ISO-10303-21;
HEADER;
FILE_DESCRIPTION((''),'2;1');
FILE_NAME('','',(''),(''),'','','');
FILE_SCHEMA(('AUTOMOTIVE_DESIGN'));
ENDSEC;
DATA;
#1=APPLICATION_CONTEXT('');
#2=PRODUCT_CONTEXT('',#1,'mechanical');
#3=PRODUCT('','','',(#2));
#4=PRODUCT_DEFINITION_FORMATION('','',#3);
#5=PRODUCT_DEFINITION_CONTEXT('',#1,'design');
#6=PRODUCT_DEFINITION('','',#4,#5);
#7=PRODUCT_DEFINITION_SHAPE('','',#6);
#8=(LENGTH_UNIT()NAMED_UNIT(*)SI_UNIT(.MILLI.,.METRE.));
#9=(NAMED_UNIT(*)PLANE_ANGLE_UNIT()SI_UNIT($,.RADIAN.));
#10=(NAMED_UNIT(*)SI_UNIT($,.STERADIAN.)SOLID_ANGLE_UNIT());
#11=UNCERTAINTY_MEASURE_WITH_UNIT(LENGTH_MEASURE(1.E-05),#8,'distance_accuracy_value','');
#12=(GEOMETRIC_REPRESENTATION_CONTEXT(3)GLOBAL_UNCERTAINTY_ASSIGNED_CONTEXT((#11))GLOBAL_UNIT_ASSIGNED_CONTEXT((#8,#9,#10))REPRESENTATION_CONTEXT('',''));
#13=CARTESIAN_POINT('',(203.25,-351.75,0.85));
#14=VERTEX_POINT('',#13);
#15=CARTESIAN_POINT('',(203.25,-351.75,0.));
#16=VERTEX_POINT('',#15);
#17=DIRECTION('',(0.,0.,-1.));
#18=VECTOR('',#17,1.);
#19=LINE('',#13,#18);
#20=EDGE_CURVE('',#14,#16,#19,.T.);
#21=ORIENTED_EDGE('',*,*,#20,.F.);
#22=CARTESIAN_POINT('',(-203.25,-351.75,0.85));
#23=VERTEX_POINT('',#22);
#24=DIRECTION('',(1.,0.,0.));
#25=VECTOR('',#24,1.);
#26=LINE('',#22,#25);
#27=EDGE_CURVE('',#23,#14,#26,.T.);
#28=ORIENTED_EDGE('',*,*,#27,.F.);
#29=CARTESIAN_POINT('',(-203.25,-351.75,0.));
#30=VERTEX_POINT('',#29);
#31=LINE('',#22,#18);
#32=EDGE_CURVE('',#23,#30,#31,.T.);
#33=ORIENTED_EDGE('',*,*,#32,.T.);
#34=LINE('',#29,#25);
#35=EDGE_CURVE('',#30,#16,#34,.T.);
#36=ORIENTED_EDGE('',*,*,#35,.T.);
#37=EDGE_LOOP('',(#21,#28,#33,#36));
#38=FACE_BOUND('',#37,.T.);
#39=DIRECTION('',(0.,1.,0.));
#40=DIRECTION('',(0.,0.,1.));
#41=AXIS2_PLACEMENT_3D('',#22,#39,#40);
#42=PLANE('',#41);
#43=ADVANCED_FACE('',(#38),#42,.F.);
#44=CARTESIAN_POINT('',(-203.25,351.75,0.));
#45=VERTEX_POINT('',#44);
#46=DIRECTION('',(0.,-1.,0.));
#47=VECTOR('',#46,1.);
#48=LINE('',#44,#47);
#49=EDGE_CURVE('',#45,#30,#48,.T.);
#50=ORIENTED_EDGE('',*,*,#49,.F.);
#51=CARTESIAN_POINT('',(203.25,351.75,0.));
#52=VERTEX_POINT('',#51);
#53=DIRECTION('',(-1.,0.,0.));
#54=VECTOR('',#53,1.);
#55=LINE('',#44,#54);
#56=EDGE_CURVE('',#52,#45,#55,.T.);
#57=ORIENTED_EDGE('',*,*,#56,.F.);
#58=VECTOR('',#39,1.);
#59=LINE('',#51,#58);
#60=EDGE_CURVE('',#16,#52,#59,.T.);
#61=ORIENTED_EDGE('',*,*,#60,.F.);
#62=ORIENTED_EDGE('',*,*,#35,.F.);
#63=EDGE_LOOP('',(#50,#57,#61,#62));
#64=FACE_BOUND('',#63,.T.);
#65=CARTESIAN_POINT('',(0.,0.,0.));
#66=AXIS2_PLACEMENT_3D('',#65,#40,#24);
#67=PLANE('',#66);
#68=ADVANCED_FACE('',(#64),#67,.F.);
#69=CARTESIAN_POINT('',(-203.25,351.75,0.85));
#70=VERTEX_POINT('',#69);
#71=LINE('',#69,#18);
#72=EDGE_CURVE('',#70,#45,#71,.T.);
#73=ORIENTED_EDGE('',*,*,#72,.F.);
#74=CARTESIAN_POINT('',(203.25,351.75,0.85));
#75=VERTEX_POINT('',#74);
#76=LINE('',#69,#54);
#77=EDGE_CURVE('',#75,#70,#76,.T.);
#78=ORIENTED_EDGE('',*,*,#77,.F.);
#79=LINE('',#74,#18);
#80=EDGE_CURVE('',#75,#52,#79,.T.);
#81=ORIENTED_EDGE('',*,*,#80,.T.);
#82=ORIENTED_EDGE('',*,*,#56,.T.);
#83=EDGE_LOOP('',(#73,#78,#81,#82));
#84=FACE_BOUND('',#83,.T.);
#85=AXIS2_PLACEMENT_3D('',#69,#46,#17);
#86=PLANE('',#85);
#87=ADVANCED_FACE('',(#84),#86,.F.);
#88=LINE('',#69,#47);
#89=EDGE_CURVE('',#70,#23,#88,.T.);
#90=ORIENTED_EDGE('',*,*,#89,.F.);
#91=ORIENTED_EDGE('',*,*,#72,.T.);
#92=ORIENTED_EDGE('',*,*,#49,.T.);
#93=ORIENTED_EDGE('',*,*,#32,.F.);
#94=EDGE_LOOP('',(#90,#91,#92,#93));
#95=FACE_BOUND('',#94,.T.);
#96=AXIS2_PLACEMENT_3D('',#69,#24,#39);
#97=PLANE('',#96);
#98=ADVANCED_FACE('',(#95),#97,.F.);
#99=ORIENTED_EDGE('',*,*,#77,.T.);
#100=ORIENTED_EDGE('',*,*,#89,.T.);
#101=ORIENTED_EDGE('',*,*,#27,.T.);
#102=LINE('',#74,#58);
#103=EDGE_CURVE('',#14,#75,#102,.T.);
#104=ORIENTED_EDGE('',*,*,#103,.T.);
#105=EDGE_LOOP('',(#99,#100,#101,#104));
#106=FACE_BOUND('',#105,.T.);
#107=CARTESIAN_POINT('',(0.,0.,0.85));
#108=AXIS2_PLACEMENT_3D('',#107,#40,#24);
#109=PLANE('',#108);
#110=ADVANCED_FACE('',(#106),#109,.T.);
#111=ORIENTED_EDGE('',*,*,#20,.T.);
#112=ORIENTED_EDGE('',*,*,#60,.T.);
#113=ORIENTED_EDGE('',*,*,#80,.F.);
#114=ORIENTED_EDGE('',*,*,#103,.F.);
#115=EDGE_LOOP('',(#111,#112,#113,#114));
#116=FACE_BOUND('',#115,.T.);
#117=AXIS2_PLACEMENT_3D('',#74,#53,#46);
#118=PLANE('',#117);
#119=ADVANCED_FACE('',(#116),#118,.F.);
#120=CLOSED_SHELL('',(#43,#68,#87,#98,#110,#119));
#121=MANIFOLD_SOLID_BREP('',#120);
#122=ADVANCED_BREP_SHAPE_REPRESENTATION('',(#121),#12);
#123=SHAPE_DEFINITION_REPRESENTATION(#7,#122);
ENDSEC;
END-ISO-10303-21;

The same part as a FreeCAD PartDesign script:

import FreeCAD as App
import Part
import Sketcher
from FreeCAD import Vector
Q = App.Units.Quantity


def add_polygon(sketch, points):
    """Adds a closed chain of lines whose ends are joined by coincident constraints."""
    first, n = sketch.GeometryCount, len(points)
    for a, b in zip(points, points[1:] + points[:1]):
        sketch.addGeometry(Part.LineSegment(App.Vector(*a, 0), App.Vector(*b, 0)), False)
    for i in range(n):
        sketch.addConstraint(Sketcher.Constraint("Coincident", first + i, 2, first + (i + 1) % n, 1))

doc = App.newDocument("Part")
body = doc.addObject("PartDesign::Body", "Body")

# Sketch on XY plane
sketch1 = body.newObject("Sketcher::SketchObject", "Sketch")
sketch1.AttachmentSupport = (doc.getObject("XY_Plane"), [""])
sketch1.MapMode = "FlatFace"
add_polygon(sketch1, [(-203, 352), (-203, -352), (203, -352), (203, 352)])  # lines 0-3
sketch1.addConstraint([
    Sketcher.Constraint("Vertical", 0),
    Sketcher.Constraint("Horizontal", 1),
    Sketcher.Constraint("Vertical", 2),
    Sketcher.Constraint("Horizontal", 3),
    Sketcher.Constraint("Symmetric", 0, 2, 2, 2, -1, 1),
    Sketcher.Constraint("DistanceX", 1, 1, 1, 2, Q("406.5 mm")),
    Sketcher.Constraint("DistanceY", 0, 2, 0, 1, Q("703.5 mm")),
])
pad1 = body.newObject("PartDesign::Pad", "Pad")
pad1.Profile = sketch1
pad1.Length = 0.85

doc.recompute()
